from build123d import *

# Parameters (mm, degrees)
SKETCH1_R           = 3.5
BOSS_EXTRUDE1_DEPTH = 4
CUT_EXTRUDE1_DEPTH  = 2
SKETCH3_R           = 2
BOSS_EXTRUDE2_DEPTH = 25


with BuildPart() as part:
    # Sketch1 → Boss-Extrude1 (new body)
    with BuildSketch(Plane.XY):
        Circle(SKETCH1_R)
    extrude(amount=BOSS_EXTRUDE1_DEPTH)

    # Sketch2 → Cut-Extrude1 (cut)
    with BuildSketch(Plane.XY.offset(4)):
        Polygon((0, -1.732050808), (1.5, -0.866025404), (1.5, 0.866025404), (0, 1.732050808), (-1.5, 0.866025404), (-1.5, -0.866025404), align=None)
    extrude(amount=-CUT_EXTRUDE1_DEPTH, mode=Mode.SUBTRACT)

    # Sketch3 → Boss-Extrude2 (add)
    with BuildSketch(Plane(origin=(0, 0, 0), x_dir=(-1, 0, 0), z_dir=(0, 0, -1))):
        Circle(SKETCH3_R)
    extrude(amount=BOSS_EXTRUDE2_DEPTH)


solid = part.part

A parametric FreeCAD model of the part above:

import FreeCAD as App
import Part
import Sketcher

V = App.Vector
Q = App.Units.Quantity


def add_polygon(sketch, points):
    """Adds a closed chain of lines whose ends are joined by coincident constraints."""
    first, n = sketch.GeometryCount, len(points)
    for a, b in zip(points, points[1:] + points[:1]):
        sketch.addGeometry(Part.LineSegment(App.Vector(*a, 0), App.Vector(*b, 0)), False)
    for i in range(n):
        sketch.addConstraint(Sketcher.Constraint("Coincident", first + i, 2, first + (i + 1) % n, 1))

doc = App.newDocument("Part")
body = doc.addObject("PartDesign::Body", "Body")

# Sketch on XY plane
sketch1 = body.newObject("Sketcher::SketchObject", "Sketch")
sketch1.AttachmentSupport = (doc.getObject("XY_Plane"), [""])
sketch1.MapMode = "FlatFace"
sketch1.addGeometry(Part.Circle(V(0, 0, 0), V(0, 0, 1), 3.5), False)
sketch1.addConstraint([
    Sketcher.Constraint("Coincident", 0, 3, -1, 1),
    Sketcher.Constraint("Diameter", 0, 7.0),
])
pad1 = body.newObject("PartDesign::Pad", "Pad")
pad1.Profile = sketch1
pad1.Length = 4

# Sketch on XY plane
sketch2 = body.newObject("Sketcher::SketchObject", "Sketch001")
sketch2.AttachmentSupport = (doc.getObject("XY_Plane"), [""])
sketch2.MapMode = "FlatFace"
sketch2.AttachmentOffset = App.Placement(V(0, 0, 4), App.Rotation())
add_polygon(sketch2, [(0, -1.7), (1.5, -0.9), (1.5, 0.9), (0, 1.7), (-1.5, 0.9), (-1.5, -0.9)])  # lines 0-5
sketch2.addConstraint([
    Sketcher.Constraint("Vertical", 1),
    Sketcher.Constraint("Vertical", 4),
    Sketcher.Constraint("Symmetric", 0, 2, 3, 2, -1, 1),
    Sketcher.Constraint("Symmetric", 2, 2, 5, 2, -1, 1),
    Sketcher.Constraint("PointOnObject", 2, 2, -2),
    Sketcher.Constraint("Parallel", 2, 5),
    Sketcher.Constraint("Horizontal", 1, 2, 3, 2),
    Sketcher.Constraint("Angle", 0, Q("30 deg")),
    Sketcher.Constraint("DistanceX", 3, 2, 1, 2, 3.0),
    Sketcher.Constraint("DistanceY", 1, 1, 1, 2, 1.732051),
])
pocket1 = body.newObject("PartDesign::Pocket", "Pocket")
pocket1.Profile = sketch2
pocket1.Length = 2

# Sketch on XY plane
sketch3 = body.newObject("Sketcher::SketchObject", "Sketch002")
sketch3.AttachmentSupport = (doc.getObject("XY_Plane"), [""])
sketch3.MapMode = "FlatFace"
sketch3.addGeometry(Part.Circle(V(0, 0, 0), V(0, 0, 1), 2), False)
sketch3.addConstraint([
    Sketcher.Constraint("Coincident", 0, 3, -1, 1),
    Sketcher.Constraint("Diameter", 0, 4.0),
])
pad2 = body.newObject("PartDesign::Pad", "Pad001")
pad2.Profile = sketch3
pad2.Length = 25
pad2.Reversed = True

doc.recompute()
